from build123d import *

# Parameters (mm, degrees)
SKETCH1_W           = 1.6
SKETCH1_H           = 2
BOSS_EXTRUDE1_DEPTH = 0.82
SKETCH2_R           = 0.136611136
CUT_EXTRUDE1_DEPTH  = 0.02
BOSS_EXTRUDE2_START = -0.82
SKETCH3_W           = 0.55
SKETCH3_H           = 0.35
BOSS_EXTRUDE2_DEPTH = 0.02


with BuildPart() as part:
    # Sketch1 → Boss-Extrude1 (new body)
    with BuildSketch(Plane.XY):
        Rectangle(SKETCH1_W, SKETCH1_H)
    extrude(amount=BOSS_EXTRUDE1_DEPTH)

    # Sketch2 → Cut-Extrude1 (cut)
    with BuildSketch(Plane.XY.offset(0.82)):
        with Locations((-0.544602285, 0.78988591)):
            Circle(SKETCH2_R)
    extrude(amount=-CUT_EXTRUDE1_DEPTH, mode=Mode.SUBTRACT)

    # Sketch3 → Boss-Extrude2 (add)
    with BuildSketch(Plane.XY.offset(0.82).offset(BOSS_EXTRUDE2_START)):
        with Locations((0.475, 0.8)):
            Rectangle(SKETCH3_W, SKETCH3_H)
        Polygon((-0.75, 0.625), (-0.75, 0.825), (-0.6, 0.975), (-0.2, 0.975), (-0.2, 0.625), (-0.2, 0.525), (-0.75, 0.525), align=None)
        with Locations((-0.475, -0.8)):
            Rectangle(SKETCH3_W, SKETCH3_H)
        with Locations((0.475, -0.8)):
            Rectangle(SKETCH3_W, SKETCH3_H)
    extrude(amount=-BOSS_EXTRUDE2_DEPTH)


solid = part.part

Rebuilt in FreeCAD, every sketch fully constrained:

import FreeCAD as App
import Part
import Sketcher

V = App.Vector
Q = App.Units.Quantity

doc = App.newDocument("Part")
body = doc.addObject("PartDesign::Body", "Body")

sketch1 = doc.addObject("Sketcher::SketchObject", "Sketch")
body.addObject(sketch1)
sketch1.AttachmentSupport = (doc.XY_Plane, [""])
sketch1.MapMode = "FlatFace"
sketch1.addGeometry(Part.LineSegment(V(-0.8, 1, 0), V(-0.8, -1, 0)), False)
sketch1.addGeometry(Part.LineSegment(V(-0.8, -1, 0), V(0.8, -1, 0)), False)
sketch1.addGeometry(Part.LineSegment(V(0.8, -1, 0), V(0.8, 1, 0)), False)
sketch1.addGeometry(Part.LineSegment(V(0.8, 1, 0), V(-0.8, 1, 0)), False)
sketch1.addConstraint(Sketcher.Constraint("Coincident", 0, 2, 1, 1))
sketch1.addConstraint(Sketcher.Constraint("Coincident", 1, 2, 2, 1))
sketch1.addConstraint(Sketcher.Constraint("Coincident", 2, 2, 3, 1))
sketch1.addConstraint(Sketcher.Constraint("Coincident", 3, 2, 0, 1))
sketch1.addConstraint(Sketcher.Constraint("Vertical", 0))
sketch1.addConstraint(Sketcher.Constraint("Horizontal", 1))
sketch1.addConstraint(Sketcher.Constraint("Vertical", 2))
sketch1.addConstraint(Sketcher.Constraint("Horizontal", 3))
sketch1.addConstraint(Sketcher.Constraint("Symmetric", 0, 2, 2, 2, -1, 1))
sketch1.addConstraint(Sketcher.Constraint("DistanceY", 0, 2, 0, 1, Q("2 mm")))
sketch1.addConstraint(Sketcher.Constraint("DistanceX", 1, 1, 1, 2, Q("1.6 mm")))
pad1 = doc.addObject("PartDesign::Pad", "Pad")
body.addObject(pad1)
pad1.Profile = sketch1
pad1.Length = 0.82

sketch2 = doc.addObject("Sketcher::SketchObject", "Sketch001")
body.addObject(sketch2)
sketch2.AttachmentSupport = (doc.XY_Plane, [""])
sketch2.MapMode = "FlatFace"
sketch2.AttachmentOffset = App.Placement(V(0, 0, 0.82), App.Rotation())
sketch2.addGeometry(Part.Circle(V(-0.544602, 0.789886, 0), V(0, 0, 1), 0.136611), False)
sketch2.addConstraint(Sketcher.Constraint("Diameter", 0, Q("0.273222 mm")))
sketch2.addConstraint(Sketcher.Constraint("DistanceX", 0, 3, -1, 1, Q("0.544602 mm")))
sketch2.addConstraint(Sketcher.Constraint("DistanceY", -1, 1, 0, 3, Q("0.789886 mm")))
pocket1 = doc.addObject("PartDesign::Pocket", "Pocket")
body.addObject(pocket1)
pocket1.Profile = sketch2
pocket1.Length = 0.02

sketch3 = doc.addObject("Sketcher::SketchObject", "Sketch002")
body.addObject(sketch3)
sketch3.AttachmentSupport = (doc.XY_Plane, [""])
sketch3.MapMode = "FlatFace"
sketch3.addGeometry(Part.LineSegment(V(0.2, 0.975, 0), V(0.2, 0.625, 0)), False)
sketch3.addGeometry(Part.LineSegment(V(0.2, 0.625, 0), V(0.75, 0.625, 0)), False)
sketch3.addGeometry(Part.LineSegment(V(0.75, 0.625, 0), V(0.75, 0.975, 0)), False)
sketch3.addGeometry(Part.LineSegment(V(0.75, 0.975, 0), V(0.2, 0.975, 0)), False)
sketch3.addGeometry(Part.LineSegment(V(-0.75, 0.825, 0), V(-0.75, 0.525, 0)), False)
sketch3.addGeometry(Part.LineSegment(V(-0.75, 0.525, 0), V(-0.2, 0.525, 0)), False)
sketch3.addGeometry(Part.LineSegment(V(-0.2, 0.525, 0), V(-0.2, 0.975, 0)), False)
sketch3.addGeometry(Part.LineSegment(V(-0.2, 0.975, 0), V(-0.6, 0.975, 0)), False)
sketch3.addGeometry(Part.LineSegment(V(-0.6, 0.975, 0), V(-0.75, 0.825, 0)), False)
sketch3.addGeometry(Part.LineSegment(V(-0.75, -0.625, 0), V(-0.75, -0.975, 0)), False)
sketch3.addGeometry(Part.LineSegment(V(-0.75, -0.975, 0), V(-0.2, -0.975, 0)), False)
sketch3.addGeometry(Part.LineSegment(V(-0.2, -0.975, 0), V(-0.2, -0.625, 0)), False)
sketch3.addGeometry(Part.LineSegment(V(-0.2, -0.625, 0), V(-0.75, -0.625, 0)), False)
sketch3.addGeometry(Part.LineSegment(V(0.2, -0.625, 0), V(0.2, -0.975, 0)), False)
sketch3.addGeometry(Part.LineSegment(V(0.2, -0.975, 0), V(0.75, -0.975, 0)), False)
sketch3.addGeometry(Part.LineSegment(V(0.75, -0.975, 0), V(0.75, -0.625, 0)), False)
sketch3.addGeometry(Part.LineSegment(V(0.75, -0.625, 0), V(0.2, -0.625, 0)), False)
sketch3.addConstraint(Sketcher.Constraint("Coincident", 0, 2, 1, 1))
sketch3.addConstraint(Sketcher.Constraint("Coincident", 1, 2, 2, 1))
sketch3.addConstraint(Sketcher.Constraint("Coincident", 2, 2, 3, 1))
sketch3.addConstraint(Sketcher.Constraint("Coincident", 3, 2, 0, 1))
sketch3.addConstraint(Sketcher.Constraint("Coincident", 4, 2, 5, 1))
sketch3.addConstraint(Sketcher.Constraint("Coincident", 5, 2, 6, 1))
sketch3.addConstraint(Sketcher.Constraint("Coincident", 6, 2, 7, 1))
sketch3.addConstraint(Sketcher.Constraint("Coincident", 7, 2, 8, 1))
sketch3.addConstraint(Sketcher.Constraint("Coincident", 8, 2, 4, 1))
sketch3.addConstraint(Sketcher.Constraint("Coincident", 9, 2, 10, 1))
sketch3.addConstraint(Sketcher.Constraint("Coincident", 10, 2, 11, 1))
sketch3.addConstraint(Sketcher.Constraint("Coincident", 11, 2, 12, 1))
sketch3.addConstraint(Sketcher.Constraint("Coincident", 12, 2, 9, 1))
sketch3.addConstraint(Sketcher.Constraint("Coincident", 13, 2, 14, 1))
sketch3.addConstraint(Sketcher.Constraint("Coincident", 14, 2, 15, 1))
sketch3.addConstraint(Sketcher.Constraint("Coincident", 15, 2, 16, 1))
sketch3.addConstraint(Sketcher.Constraint("Coincident", 16, 2, 13, 1))
sketch3.addConstraint(Sketcher.Constraint("Vertical", 0))
sketch3.addConstraint(Sketcher.Constraint("Horizontal", 1))
sketch3.addConstraint(Sketcher.Constraint("Vertical", 2))
sketch3.addConstraint(Sketcher.Constraint("Horizontal", 3))
sketch3.addConstraint(Sketcher.Constraint("Vertical", 4))
sketch3.addConstraint(Sketcher.Constraint("Horizontal", 5))
sketch3.addConstraint(Sketcher.Constraint("Vertical", 6))
sketch3.addConstraint(Sketcher.Constraint("Horizontal", 7))
sketch3.addConstraint(Sketcher.Constraint("Vertical", 9))
sketch3.addConstraint(Sketcher.Constraint("Horizontal", 10))
sketch3.addConstraint(Sketcher.Constraint("Vertical", 11))
sketch3.addConstraint(Sketcher.Constraint("Horizontal", 12))
sketch3.addConstraint(Sketcher.Constraint("Vertical", 13))
sketch3.addConstraint(Sketcher.Constraint("Horizontal", 14))
sketch3.addConstraint(Sketcher.Constraint("Vertical", 15))
sketch3.addConstraint(Sketcher.Constraint("Horizontal", 16))
sketch3.addConstraint(Sketcher.Constraint("Symmetric", 2, 2, 9, 2, -1, 1))
sketch3.addConstraint(Sketcher.Constraint("Symmetric", 0, 2, 11, 2, -1, 1))
sketch3.addConstraint(Sketcher.Constraint("Symmetric", 6, 2, 13, 2, -1, 1))
sketch3.addConstraint(Sketcher.Constraint("Symmetric", 3, 2, 6, 2, -2))
sketch3.addConstraint(Sketcher.Constraint("Symmetric", 12, 2, 15, 2, -2))
sketch3.addConstraint(Sketcher.Constraint("Vertical", 8, 2, 9, 2))
sketch3.addConstraint(Sketcher.Constraint("Angle", 8, Q("-135 deg")))
sketch3.addConstraint(Sketcher.Constraint("DistanceX", 7, 2, 7, 1, Q("0.4 mm")))
sketch3.addConstraint(Sketcher.Constraint("DistanceY", 4, 2, 4, 1, Q("0.3 mm")))
sketch3.addConstraint(Sketcher.Constraint("DistanceX", 1, 1, 1, 2, Q("0.55 mm")))
sketch3.addConstraint(Sketcher.Constraint("DistanceY", 0, 2, 0, 1, Q("0.35 mm")))
sketch3.addConstraint(Sketcher.Constraint("DistanceX", -1, 1, 0, 2, Q("0.2 mm")))
sketch3.addConstraint(Sketcher.Constraint("DistanceY", 9, 2, 4, 2, Q("1.5 mm")))
pad2 = doc.addObject("PartDesign::Pad", "Pad001")
body.addObject(pad2)
pad2.Profile = sketch3
pad2.Length = 0.02
pad2.Reversed = True

doc.recompute()
